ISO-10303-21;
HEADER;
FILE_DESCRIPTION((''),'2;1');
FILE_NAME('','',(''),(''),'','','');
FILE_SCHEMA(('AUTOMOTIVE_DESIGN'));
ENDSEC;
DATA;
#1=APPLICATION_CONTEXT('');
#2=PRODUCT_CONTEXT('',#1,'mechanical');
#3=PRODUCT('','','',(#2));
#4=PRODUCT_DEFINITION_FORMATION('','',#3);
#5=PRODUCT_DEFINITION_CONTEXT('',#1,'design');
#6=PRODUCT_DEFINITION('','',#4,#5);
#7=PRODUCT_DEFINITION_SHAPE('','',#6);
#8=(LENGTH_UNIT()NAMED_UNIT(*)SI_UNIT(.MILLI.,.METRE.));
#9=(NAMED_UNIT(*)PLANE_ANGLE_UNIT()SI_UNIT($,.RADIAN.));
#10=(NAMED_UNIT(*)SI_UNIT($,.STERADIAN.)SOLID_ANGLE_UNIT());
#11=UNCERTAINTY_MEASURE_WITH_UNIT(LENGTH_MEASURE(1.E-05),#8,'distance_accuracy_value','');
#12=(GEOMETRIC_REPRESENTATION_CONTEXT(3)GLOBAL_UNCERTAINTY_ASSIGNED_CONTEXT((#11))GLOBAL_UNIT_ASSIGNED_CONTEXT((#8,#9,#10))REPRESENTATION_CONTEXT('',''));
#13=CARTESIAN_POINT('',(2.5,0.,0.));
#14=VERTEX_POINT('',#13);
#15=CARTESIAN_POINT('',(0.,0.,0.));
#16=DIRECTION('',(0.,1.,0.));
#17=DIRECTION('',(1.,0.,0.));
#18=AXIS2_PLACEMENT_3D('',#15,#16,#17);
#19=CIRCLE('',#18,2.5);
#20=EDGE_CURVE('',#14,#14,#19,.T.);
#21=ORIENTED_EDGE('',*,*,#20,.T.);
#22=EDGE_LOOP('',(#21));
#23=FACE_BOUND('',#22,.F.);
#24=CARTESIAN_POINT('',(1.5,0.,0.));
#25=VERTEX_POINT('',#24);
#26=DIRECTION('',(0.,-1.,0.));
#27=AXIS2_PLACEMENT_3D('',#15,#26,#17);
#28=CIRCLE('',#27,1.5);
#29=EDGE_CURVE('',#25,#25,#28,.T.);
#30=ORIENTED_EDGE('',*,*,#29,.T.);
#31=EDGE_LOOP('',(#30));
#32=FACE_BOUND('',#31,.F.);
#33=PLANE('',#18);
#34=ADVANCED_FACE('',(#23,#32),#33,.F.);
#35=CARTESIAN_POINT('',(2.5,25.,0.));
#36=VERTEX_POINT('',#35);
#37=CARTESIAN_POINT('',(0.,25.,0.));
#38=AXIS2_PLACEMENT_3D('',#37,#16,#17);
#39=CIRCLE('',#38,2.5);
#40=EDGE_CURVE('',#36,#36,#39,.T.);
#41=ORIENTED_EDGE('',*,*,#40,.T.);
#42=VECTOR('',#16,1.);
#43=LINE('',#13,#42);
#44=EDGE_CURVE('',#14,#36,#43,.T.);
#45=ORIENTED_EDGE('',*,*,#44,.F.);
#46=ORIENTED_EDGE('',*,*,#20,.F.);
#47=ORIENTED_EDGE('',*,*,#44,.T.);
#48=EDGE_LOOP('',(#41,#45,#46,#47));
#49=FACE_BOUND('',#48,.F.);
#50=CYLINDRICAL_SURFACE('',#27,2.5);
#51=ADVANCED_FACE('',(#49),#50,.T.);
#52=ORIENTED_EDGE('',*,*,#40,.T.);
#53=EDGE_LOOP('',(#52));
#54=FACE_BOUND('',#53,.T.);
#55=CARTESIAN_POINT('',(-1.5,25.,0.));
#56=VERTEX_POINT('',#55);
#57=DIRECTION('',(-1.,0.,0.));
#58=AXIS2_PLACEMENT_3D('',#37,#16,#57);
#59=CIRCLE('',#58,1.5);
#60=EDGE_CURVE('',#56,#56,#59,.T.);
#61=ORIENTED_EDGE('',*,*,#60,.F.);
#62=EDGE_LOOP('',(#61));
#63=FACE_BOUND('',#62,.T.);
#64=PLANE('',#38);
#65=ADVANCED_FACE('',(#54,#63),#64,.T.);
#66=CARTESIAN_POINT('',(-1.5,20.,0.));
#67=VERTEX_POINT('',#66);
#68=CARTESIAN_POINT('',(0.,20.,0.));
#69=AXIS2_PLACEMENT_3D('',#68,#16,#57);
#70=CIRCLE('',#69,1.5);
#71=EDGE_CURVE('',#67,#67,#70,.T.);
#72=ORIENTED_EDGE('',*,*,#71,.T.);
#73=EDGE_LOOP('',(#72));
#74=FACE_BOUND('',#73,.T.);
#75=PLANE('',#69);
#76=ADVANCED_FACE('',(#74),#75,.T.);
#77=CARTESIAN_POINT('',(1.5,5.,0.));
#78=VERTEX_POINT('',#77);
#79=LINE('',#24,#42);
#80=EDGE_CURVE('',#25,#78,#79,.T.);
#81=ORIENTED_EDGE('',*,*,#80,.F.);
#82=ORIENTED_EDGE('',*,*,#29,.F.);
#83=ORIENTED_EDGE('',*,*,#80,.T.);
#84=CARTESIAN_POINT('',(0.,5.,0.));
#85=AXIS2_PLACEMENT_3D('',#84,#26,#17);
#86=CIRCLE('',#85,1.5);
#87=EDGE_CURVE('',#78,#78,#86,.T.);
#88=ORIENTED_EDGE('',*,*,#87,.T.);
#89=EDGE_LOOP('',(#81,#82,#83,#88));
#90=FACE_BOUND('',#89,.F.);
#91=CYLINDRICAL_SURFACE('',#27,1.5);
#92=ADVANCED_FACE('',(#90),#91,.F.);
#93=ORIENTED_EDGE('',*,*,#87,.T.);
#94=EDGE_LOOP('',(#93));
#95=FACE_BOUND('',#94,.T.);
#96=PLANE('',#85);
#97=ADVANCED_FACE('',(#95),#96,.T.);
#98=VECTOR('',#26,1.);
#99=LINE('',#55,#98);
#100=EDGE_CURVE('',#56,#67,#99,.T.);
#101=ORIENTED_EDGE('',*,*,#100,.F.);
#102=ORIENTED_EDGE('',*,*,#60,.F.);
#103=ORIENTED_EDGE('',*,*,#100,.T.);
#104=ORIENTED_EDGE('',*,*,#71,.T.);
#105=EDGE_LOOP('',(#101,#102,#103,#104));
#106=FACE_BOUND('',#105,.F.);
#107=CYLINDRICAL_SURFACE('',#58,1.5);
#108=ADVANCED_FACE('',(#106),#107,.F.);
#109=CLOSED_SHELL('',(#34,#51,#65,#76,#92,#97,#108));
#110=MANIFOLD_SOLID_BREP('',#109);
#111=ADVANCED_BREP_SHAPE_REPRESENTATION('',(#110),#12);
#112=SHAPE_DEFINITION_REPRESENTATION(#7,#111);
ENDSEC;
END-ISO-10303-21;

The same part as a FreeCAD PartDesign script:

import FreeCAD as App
import Part
import Sketcher
from FreeCAD import Vector

doc = App.newDocument("Part")
body = doc.addObject("PartDesign::Body", "Body")

# Sketch on XZ plane
sketch1 = doc.addObject("Sketcher::SketchObject", "Sketch")
body.addObject(sketch1)
sketch1.AttachmentSupport = (doc.XZ_Plane, [""])
sketch1.MapMode = "FlatFace"
sketch1.addGeometry(Part.Circle(Vector(0, 0, 0), Vector(0, 0, 1), 2.5), False)
sketch1.addConstraint([
    Sketcher.Constraint("Coincident", 0, 3, -1, 1),
    Sketcher.Constraint("Diameter", 0, 5.0),
])
pad1 = doc.addObject("PartDesign::Pad", "Pad")
body.addObject(pad1)
pad1.Profile = sketch1
pad1.Length = 25
pad1.Reversed = True

# Sketch on XZ plane
sketch2 = doc.addObject("Sketcher::SketchObject", "Sketch001")
body.addObject(sketch2)
sketch2.AttachmentSupport = (doc.XZ_Plane, [""])
sketch2.MapMode = "FlatFace"
sketch2.AttachmentOffset = App.Placement(Vector(0, 0, -25), App.Rotation())
sketch2.addGeometry(Part.Circle(Vector(0, 0, 0), Vector(0, 0, 1), 1.5), False)
sketch2.addConstraint([
    Sketcher.Constraint("Coincident", 0, 3, -1, 1),
    Sketcher.Constraint("Diameter", 0, 3.0),
])
pocket1 = doc.addObject("PartDesign::Pocket", "Pocket")
body.addObject(pocket1)
pocket1.Profile = sketch2
pocket1.Length = 5
pocket1.Reversed = True

# Sketch on XZ plane
sketch3 = doc.addObject("Sketcher::SketchObject", "Sketch002")
body.addObject(sketch3)
sketch3.AttachmentSupport = (doc.XZ_Plane, [""])
sketch3.MapMode = "FlatFace"
sketch3.addGeometry(Part.Circle(Vector(0, 0, 0), Vector(0, 0, 1), 1.5), False)
sketch3.addConstraint([
    Sketcher.Constraint("Coincident", 0, 3, -1, 1),
    Sketcher.Constraint("Diameter", 0, 3.0),
])
pocket2 = doc.addObject("PartDesign::Pocket", "Pocket001")
body.addObject(pocket2)
pocket2.Profile = sketch3
pocket2.Length = 5

doc.recompute()
